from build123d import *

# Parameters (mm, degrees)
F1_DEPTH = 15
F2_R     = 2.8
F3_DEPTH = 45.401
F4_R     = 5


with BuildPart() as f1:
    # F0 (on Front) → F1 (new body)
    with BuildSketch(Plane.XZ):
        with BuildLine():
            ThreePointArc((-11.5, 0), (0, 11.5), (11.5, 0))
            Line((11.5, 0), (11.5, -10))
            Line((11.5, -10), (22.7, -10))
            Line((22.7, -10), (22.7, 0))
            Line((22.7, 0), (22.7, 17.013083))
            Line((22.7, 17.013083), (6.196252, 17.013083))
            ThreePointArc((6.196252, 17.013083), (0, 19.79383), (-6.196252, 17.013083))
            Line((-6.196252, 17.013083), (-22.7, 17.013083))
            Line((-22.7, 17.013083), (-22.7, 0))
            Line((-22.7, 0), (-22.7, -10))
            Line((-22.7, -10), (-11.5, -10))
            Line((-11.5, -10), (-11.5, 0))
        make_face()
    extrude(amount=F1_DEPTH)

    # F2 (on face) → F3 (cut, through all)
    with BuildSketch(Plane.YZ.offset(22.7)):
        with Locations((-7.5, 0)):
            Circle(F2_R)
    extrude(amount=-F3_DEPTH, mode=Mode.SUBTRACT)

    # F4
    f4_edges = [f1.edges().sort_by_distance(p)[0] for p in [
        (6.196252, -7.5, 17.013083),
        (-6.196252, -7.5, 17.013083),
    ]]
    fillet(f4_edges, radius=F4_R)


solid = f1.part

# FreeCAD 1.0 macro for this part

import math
import FreeCAD as App
import Part
import Sketcher
from FreeCAD import Vector


def edges_at(feature, points):
    """Names of the edges that pass closest to the given points."""
    edges = feature.Shape.Edges
    near = lambda p: min(range(len(edges)), key=lambda i: edges[i].distToShape(Part.Vertex(*p))[0])
    return sorted({f"Edge{near(p) + 1}" for p in points})

doc = App.newDocument("Part")
body = doc.addObject("PartDesign::Body", "Body")

# Sketch on XZ plane
sketch1 = body.newObject("Sketcher::SketchObject", "Sketch")
sketch1.AttachmentSupport = (doc.getObject("XZ_Plane"), [""])
sketch1.MapMode = "FlatFace"
sketch1.addGeometry(Part.ArcOfCircle(Part.Circle(Vector(0, 0, 0), Vector(0, 0, 1), 11.5), math.radians(0), math.radians(180)), False)
sketch1.addGeometry(Part.LineSegment(Vector(11.5, 0, 0), Vector(11.5, -10, 0)), False)
sketch1.addGeometry(Part.LineSegment(Vector(11.5, -10, 0), Vector(22.7, -10, 0)), False)
sketch1.addGeometry(Part.LineSegment(Vector(22.7, -10, 0), Vector(22.7, 17.013083, 0)), False)
sketch1.addGeometry(Part.LineSegment(Vector(22.7, 17.013083, 0), Vector(6.196252, 17.013083, 0)), False)
sketch1.addGeometry(Part.ArcOfCircle(Part.Circle(Vector(0, 11.499999, 0), Vector(0, 0, 1), 8.293831), math.radians(41.660929), math.radians(138.339071)), False)
sketch1.addGeometry(Part.LineSegment(Vector(-6.196252, 17.013083, 0), Vector(-22.7, 17.013083, 0)), False)
sketch1.addGeometry(Part.LineSegment(Vector(-22.7, 17.013083, 0), Vector(-22.7, -10, 0)), False)
sketch1.addGeometry(Part.LineSegment(Vector(-22.7, -10, 0), Vector(-11.5, -10, 0)), False)
sketch1.addGeometry(Part.LineSegment(Vector(-11.5, -10, 0), Vector(-11.5, 0, 0)), False)
sketch1.addConstraint(Sketcher.Constraint("Tangent", 0, 1, 1, 1))
sketch1.addConstraint(Sketcher.Constraint("Coincident", 1, 2, 2, 1))
sketch1.addConstraint(Sketcher.Constraint("Coincident", 2, 2, 3, 1))
sketch1.addConstraint(Sketcher.Constraint("Coincident", 3, 2, 4, 1))
sketch1.addConstraint(Sketcher.Constraint("Coincident", 4, 2, 5, 1))
sketch1.addConstraint(Sketcher.Constraint("Coincident", 5, 2, 6, 1))
sketch1.addConstraint(Sketcher.Constraint("Coincident", 6, 2, 7, 1))
sketch1.addConstraint(Sketcher.Constraint("Coincident", 7, 2, 8, 1))
sketch1.addConstraint(Sketcher.Constraint("Coincident", 8, 2, 9, 1))
sketch1.addConstraint(Sketcher.Constraint("Tangent", 9, 2, 0, 2))
sketch1.addConstraint(Sketcher.Constraint("Vertical", 1))
sketch1.addConstraint(Sketcher.Constraint("Horizontal", 2))
sketch1.addConstraint(Sketcher.Constraint("Vertical", 3))
sketch1.addConstraint(Sketcher.Constraint("Horizontal", 4))
sketch1.addConstraint(Sketcher.Constraint("Horizontal", 6))
sketch1.addConstraint(Sketcher.Constraint("Vertical", 7))
sketch1.addConstraint(Sketcher.Constraint("Horizontal", 8))
sketch1.addConstraint(Sketcher.Constraint("Vertical", 9))
sketch1.addConstraint(Sketcher.Constraint("Coincident", 0, 3, -1, 1))
sketch1.addConstraint(Sketcher.Constraint("Symmetric", 4, 2, 5, 2, -2))
sketch1.addConstraint(Sketcher.Constraint("Symmetric", 2, 2, 7, 2, -2))
sketch1.addConstraint(Sketcher.Constraint("Radius", 0, 11.5))
sketch1.addConstraint(Sketcher.Constraint("DistanceY", 1, 2, 1, 1, 10.0))
sketch1.addConstraint(Sketcher.Constraint("DistanceX", 2, 1, 2, 2, 11.2))
sketch1.addConstraint(Sketcher.Constraint("DistanceY", -1, 1, 5, 3, 11.499999))
sketch1.addConstraint(Sketcher.Constraint("Radius", 5, 8.293831))
sketch1.addConstraint(Sketcher.Constraint("DistanceX", 4, 2, 4, 1, 16.503748))
pad1 = body.newObject("PartDesign::Pad", "Pad")
pad1.Profile = sketch1
pad1.Length = 15

# Sketch on YZ plane
sketch2 = body.newObject("Sketcher::SketchObject", "Sketch001")
sketch2.AttachmentSupport = (doc.getObject("YZ_Plane"), [""])
sketch2.MapMode = "FlatFace"
sketch2.AttachmentOffset = App.Placement(Vector(0, 0, 22.7), App.Rotation())
sketch2.addGeometry(Part.Circle(Vector(-7.5, 0, 0), Vector(0, 0, 1), 2.8), False)
sketch2.addConstraint(Sketcher.Constraint("PointOnObject", 0, 3, -1))
sketch2.addConstraint(Sketcher.Constraint("Diameter", 0, 5.6))
sketch2.addConstraint(Sketcher.Constraint("DistanceX", 0, 3, -1, 1, 7.5))
pocket1 = body.newObject("PartDesign::Pocket", "Pocket")
pocket1.Profile = sketch2
pocket1.Type = "ThroughAll"
doc.recompute()

fillet = body.newObject("PartDesign::Fillet", "Fillet")
fillet.Base = (pocket1, edges_at(pocket1, [(6.196, -7.5, 17.013), (-6.196, -7.5, 17.013)]))
fillet.Radius = 5

doc.recompute()
